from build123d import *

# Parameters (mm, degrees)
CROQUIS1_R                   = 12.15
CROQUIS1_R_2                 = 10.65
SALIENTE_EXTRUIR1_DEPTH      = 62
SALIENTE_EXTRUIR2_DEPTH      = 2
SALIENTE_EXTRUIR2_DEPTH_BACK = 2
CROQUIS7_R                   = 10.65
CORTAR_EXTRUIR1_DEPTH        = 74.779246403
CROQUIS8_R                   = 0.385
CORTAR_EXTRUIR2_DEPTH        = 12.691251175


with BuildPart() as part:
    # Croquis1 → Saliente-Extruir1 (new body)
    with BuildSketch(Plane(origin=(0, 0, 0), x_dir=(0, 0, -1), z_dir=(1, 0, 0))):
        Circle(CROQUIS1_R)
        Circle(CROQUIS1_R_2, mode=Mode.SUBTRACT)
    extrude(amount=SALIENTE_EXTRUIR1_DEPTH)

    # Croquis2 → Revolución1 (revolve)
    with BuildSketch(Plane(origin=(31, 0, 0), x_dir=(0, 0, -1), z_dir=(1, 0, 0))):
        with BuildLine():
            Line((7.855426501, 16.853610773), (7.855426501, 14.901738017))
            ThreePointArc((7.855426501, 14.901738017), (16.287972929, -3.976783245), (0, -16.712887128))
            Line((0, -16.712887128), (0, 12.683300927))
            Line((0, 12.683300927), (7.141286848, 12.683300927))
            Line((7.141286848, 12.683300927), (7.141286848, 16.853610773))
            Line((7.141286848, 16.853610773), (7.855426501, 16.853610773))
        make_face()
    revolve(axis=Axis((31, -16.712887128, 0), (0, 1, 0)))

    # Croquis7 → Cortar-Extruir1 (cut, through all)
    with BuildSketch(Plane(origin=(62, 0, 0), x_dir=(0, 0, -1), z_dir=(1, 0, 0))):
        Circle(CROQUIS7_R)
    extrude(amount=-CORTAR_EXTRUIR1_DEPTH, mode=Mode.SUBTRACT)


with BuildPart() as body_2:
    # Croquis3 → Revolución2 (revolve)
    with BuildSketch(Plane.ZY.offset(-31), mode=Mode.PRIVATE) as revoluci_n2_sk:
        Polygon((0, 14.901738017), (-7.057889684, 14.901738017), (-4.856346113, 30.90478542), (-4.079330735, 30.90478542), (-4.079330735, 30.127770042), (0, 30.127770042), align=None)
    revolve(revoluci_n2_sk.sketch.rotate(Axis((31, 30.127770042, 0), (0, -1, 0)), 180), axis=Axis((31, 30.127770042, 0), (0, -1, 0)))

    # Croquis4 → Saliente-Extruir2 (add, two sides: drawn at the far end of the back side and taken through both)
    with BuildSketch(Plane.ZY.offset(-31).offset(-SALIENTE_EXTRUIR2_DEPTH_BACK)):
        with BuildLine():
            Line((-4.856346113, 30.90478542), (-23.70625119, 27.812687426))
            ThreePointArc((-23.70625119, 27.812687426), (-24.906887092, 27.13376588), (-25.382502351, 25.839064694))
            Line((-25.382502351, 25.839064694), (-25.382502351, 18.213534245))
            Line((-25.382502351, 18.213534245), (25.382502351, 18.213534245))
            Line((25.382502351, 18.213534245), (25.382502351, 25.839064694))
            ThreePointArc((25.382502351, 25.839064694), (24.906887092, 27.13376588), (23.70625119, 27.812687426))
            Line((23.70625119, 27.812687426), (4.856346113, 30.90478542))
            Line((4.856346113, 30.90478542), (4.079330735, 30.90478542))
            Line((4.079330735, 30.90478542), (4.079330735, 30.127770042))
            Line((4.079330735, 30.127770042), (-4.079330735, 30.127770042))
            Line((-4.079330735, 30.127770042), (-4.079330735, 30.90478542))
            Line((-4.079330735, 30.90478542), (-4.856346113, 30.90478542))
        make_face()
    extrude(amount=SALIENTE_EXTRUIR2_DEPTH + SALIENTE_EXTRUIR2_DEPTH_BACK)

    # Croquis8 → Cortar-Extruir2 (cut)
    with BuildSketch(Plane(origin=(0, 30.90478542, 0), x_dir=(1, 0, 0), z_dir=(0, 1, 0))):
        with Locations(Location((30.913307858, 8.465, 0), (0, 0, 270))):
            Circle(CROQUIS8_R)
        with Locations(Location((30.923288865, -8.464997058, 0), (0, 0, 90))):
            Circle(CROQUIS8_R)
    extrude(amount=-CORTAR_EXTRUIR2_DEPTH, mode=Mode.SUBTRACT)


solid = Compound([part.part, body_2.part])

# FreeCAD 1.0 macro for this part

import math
import FreeCAD as App
import Part
import Sketcher

V = App.Vector
Q = App.Units.Quantity


def add_polygon(sketch, points):
    """Adds a closed chain of lines whose ends are joined by coincident constraints."""
    first, n = sketch.GeometryCount, len(points)
    for a, b in zip(points, points[1:] + points[:1]):
        sketch.addGeometry(Part.LineSegment(App.Vector(*a, 0), App.Vector(*b, 0)), False)
    for i in range(n):
        sketch.addConstraint(Sketcher.Constraint("Coincident", first + i, 2, first + (i + 1) % n, 1))

doc = App.newDocument("Part")
body = doc.addObject("PartDesign::Body", "Body")

sketch1 = body.newObject("Sketcher::SketchObject", "Sketch")
sketch1.AttachmentSupport = (doc.getObject("YZ_Plane"), [""])
sketch1.MapMode = "FlatFace"
sketch1.addGeometry([
    Part.Circle(V(0, 0, 0), V(0, 0, 1), 12),
    Part.Circle(V(0, 0, 0), V(0, 0, 1), 11),
], False)
sketch1.addConstraint([
    Sketcher.Constraint("Coincident", 0, 3, -1, 1),
    Sketcher.Constraint("Coincident", 1, 3, -1, 1),
    Sketcher.Constraint("Diameter", 0, Q("24.3 mm")),
    Sketcher.Constraint("Diameter", 1, Q("21.3 mm")),
])
pad1 = body.newObject("PartDesign::Pad", "Pad")
pad1.Profile = sketch1
pad1.Length = 62

sketch2 = body.newObject("Sketcher::SketchObject", "Sketch001")
sketch2.AttachmentSupport = (doc.getObject("YZ_Plane"), [""])
sketch2.MapMode = "FlatFace"
sketch2.AttachmentOffset = App.Placement(V(0, 0, 31), App.Rotation())
sketch2.addGeometry([
    Part.LineSegment(V(14.9, -7.9, 0), V(16.9, -7.9, 0)),
    Part.LineSegment(V(16.9, -7.9, 0), V(16.9, -7.1, 0)),
    Part.LineSegment(V(16.9, -7.1, 0), V(12.7, -7.1, 0)),
    Part.LineSegment(V(12.7, -7.1, 0), V(12.7, 0, 0)),
    Part.LineSegment(V(12.7, 0, 0), V(-16.7, 0, 0)),
    Part.ArcOfCircle(Part.Circle(V(0.1, 0, 0), V(0, 0, 1), 16.8), math.radians(180), math.radians(332)),
], False)
sketch2.addConstraint([
    Sketcher.Constraint("Coincident", 0, 2, 1, 1),
    Sketcher.Constraint("Coincident", 1, 2, 2, 1),
    Sketcher.Constraint("Coincident", 2, 2, 3, 1),
    Sketcher.Constraint("Coincident", 3, 2, 4, 1),
    Sketcher.Constraint("Coincident", 4, 2, 5, 1),
    Sketcher.Constraint("Coincident", 5, 2, 0, 1),
    Sketcher.Constraint("Horizontal", 0),
    Sketcher.Constraint("Vertical", 1),
    Sketcher.Constraint("Horizontal", 2),
    Sketcher.Constraint("Vertical", 3),
    Sketcher.Constraint("Horizontal", 4),
    Sketcher.Constraint("PointOnObject", 5, 3, -1),
    Sketcher.Constraint("PointOnObject", 3, 2, -1),
    Sketcher.Constraint("Radius", 5, Q("16.783249 mm")),
    Sketcher.Constraint("DistanceX", 2, 2, 2, 1, Q("4.17031 mm")),
    Sketcher.Constraint("DistanceX", 4, 2, 4, 1, Q("29.396188 mm")),
    Sketcher.Constraint("DistanceY", 1, 1, 1, 2, Q("0.71414 mm")),
    Sketcher.Constraint("DistanceX", -1, 1, 2, 2, Q("12.683301 mm")),
    Sketcher.Constraint("DistanceX", 0, 1, 0, 2, Q("1.951873 mm")),
])
revolution = body.newObject("PartDesign::Revolution", "Revolution")
revolution.Profile = sketch2
revolution.ReferenceAxis = (sketch2, ["H_Axis"])
revolution.Angle = 360

sketch3 = body.newObject("Sketcher::SketchObject", "Sketch002")
sketch3.AttachmentSupport = (doc.getObject("YZ_Plane"), [""])
sketch3.MapMode = "FlatFace"
sketch3.AttachmentOffset = App.Placement(V(0, 0, 62), App.Rotation())
sketch3.addGeometry(Part.Circle(V(0, 0, 0), V(0, 0, 1), 11), False)
sketch3.addConstraint([
    Sketcher.Constraint("Coincident", 0, 3, -1, 1),
    Sketcher.Constraint("Diameter", 0, Q("21.3 mm")),
])
pocket1 = body.newObject("PartDesign::Pocket", "Pocket")
pocket1.Profile = sketch3
pocket1.Type = "ThroughAll"
body2 = doc.addObject("PartDesign::Body", "Body001")

sketch4 = body2.newObject("Sketcher::SketchObject", "Sketch003")
sketch4.AttachmentSupport = (doc.getObject("YZ_Plane001"), [""])
sketch4.MapMode = "FlatFace"
sketch4.AttachmentOffset = App.Placement(V(0, 0, 31), App.Rotation())
add_polygon(sketch4, [(14.9, -7.1), (14.9, 0), (30.1, 0), (30.1, -4.1), (30.9, -4.1), (30.9, -4.9)])
sketch4.addConstraint([
    Sketcher.Constraint("Vertical", 0),
    Sketcher.Constraint("Horizontal", 1),
    Sketcher.Constraint("Vertical", 2),
    Sketcher.Constraint("Horizontal", 3),
    Sketcher.Constraint("Vertical", 4),
    Sketcher.Constraint("PointOnObject", 0, 2, -1),
    Sketcher.Constraint("Equal", 3, 4),
    Sketcher.Constraint("DistanceY", 0, 1, 0, 2, Q("7.05789 mm")),
    Sketcher.Constraint("DistanceY", 2, 2, 2, 1, Q("4.079331 mm")),
    Sketcher.Constraint("Distance", 5, Q("16.153771 mm")),
    Sketcher.Constraint("DistanceX", 1, 1, 1, 2, Q("15.226032 mm")),
    Sketcher.Constraint("DistanceX", -1, 1, 0, 2, Q("14.901738 mm")),
])
revolution2 = body2.newObject("PartDesign::Revolution", "Revolution001")
revolution2.Profile = sketch4
revolution2.ReferenceAxis = (sketch4, ["H_Axis"])
revolution2.Angle = 360

sketch5 = body2.newObject("Sketcher::SketchObject", "Sketch004")
sketch5.AttachmentSupport = (doc.getObject("YZ_Plane001"), [""])
sketch5.MapMode = "FlatFace"
sketch5.AttachmentOffset = App.Placement(V(0, 0, 31), App.Rotation())
sketch5.addGeometry([
    Part.LineSegment(V(30.9, -4.9, 0), V(27.8, -23.7, 0)),
    Part.ArcOfCircle(Part.Circle(V(25.8, -23.4, 0), V(0, 0, 1), 2), math.radians(-90), math.radians(-9)),
    Part.LineSegment(V(25.8, -25.4, 0), V(18.2, -25.4, 0)),
    Part.LineSegment(V(18.2, -25.4, 0), V(18.2, 25.4, 0)),
    Part.LineSegment(V(18.2, 25.4, 0), V(25.8, 25.4, 0)),
    Part.ArcOfCircle(Part.Circle(V(25.8, 23.4, 0), V(0, 0, 1), 2), math.radians(9), math.radians(90)),
    Part.LineSegment(V(27.8, 23.7, 0), V(30.9, 4.9, 0)),
    Part.LineSegment(V(30.9, 4.9, 0), V(30.9, 4.1, 0)),
    Part.LineSegment(V(30.9, 4.1, 0), V(30.1, 4.1, 0)),
    Part.LineSegment(V(30.1, 4.1, 0), V(30.1, -4.1, 0)),
    Part.LineSegment(V(30.1, -4.1, 0), V(30.9, -4.1, 0)),
    Part.LineSegment(V(30.9, -4.1, 0), V(30.9, -4.9, 0)),
], False)
sketch5.addConstraint([
    Sketcher.Constraint("Tangent", 0, 2, 1, 2),
    Sketcher.Constraint("Tangent", 1, 1, 2, 1),
    Sketcher.Constraint("Coincident", 2, 2, 3, 1),
    Sketcher.Constraint("Coincident", 3, 2, 4, 1),
    Sketcher.Constraint("Tangent", 4, 2, 5, 2),
    Sketcher.Constraint("Tangent", 5, 1, 6, 1),
    Sketcher.Constraint("Coincident", 6, 2, 7, 1),
    Sketcher.Constraint("Coincident", 7, 2, 8, 1),
    Sketcher.Constraint("Coincident", 8, 2, 9, 1),
    Sketcher.Constraint("Coincident", 9, 2, 10, 1),
    Sketcher.Constraint("Coincident", 10, 2, 11, 1),
    Sketcher.Constraint("Coincident", 11, 2, 0, 1),
    Sketcher.Constraint("Horizontal", 2),
    Sketcher.Constraint("Vertical", 3),
    Sketcher.Constraint("Horizontal", 4),
    Sketcher.Constraint("Vertical", 7),
    Sketcher.Constraint("Horizontal", 8),
    Sketcher.Constraint("Vertical", 9),
    Sketcher.Constraint("Horizontal", 10),
    Sketcher.Constraint("Vertical", 11),
    Sketcher.Constraint("Equal", 1, 5),
    Sketcher.Constraint("Symmetric", 1, 3, 5, 3, -1),
    Sketcher.Constraint("Symmetric", 7, 2, 10, 2, -1),
    Sketcher.Constraint("Equal", 10, 7),
    Sketcher.Constraint("Equal", 7, 11),
    Sketcher.Constraint("Radius", 1, Q("2 mm")),
    Sketcher.Constraint("DistanceX", 2, 2, 2, 1, Q("7.62553 mm")),
    Sketcher.Constraint("DistanceY", 9, 2, 9, 1, Q("8.158661 mm")),
    Sketcher.Constraint("DistanceX", 8, 2, 8, 1, Q("0.777015 mm")),
    Sketcher.Constraint("DistanceY", 3, 1, 3, 2, Q("50.765005 mm")),
    Sketcher.Constraint("DistanceY", 0, 2, -1, 1, Q("23.706251 mm")),
    Sketcher.Constraint("DistanceX", -1, 1, 8, 2, Q("30.12777 mm")),
])
pad2 = body2.newObject("PartDesign::Pad", "Pad001")
pad2.Profile = sketch5
pad2.Type = "TwoLengths"
pad2.Length = 2
pad2.Length2 = 2
pad2.Reversed = True

sketch6 = body2.newObject("Sketcher::SketchObject", "Sketch005")
sketch6.AttachmentSupport = (doc.getObject("XZ_Plane001"), [""])
sketch6.MapMode = "FlatFace"
sketch6.AttachmentOffset = App.Placement(V(0, 0, -30.904785), App.Rotation())
sketch6.addGeometry([
    Part.Circle(V(30.91, -8.46, 0), V(0, 0, 1), 0.39),
    Part.Circle(V(30.92, 8.46, 0), V(0, 0, 1), 0.39),
], False)
sketch6.addConstraint([
    Sketcher.Constraint("Equal", 0, 1),
    Sketcher.Constraint("Diameter", 0, Q("0.77 mm")),
    Sketcher.Constraint("DistanceY", 0, 3, -1, 1, Q("8.465 mm")),
    Sketcher.Constraint("DistanceX", -1, 1, 1, 3, Q("30.923289 mm")),
    Sketcher.Constraint("DistanceX", 0, 3, 1, 3, Q("0.009981 mm")),
    Sketcher.Constraint("DistanceY", -1, 1, 1, 3, Q("8.464997 mm")),
])
pocket2 = body2.newObject("PartDesign::Pocket", "Pocket001")
pocket2.Profile = sketch6
pocket2.Length = 12.691251
pocket2.Reversed = True

doc.recompute()
